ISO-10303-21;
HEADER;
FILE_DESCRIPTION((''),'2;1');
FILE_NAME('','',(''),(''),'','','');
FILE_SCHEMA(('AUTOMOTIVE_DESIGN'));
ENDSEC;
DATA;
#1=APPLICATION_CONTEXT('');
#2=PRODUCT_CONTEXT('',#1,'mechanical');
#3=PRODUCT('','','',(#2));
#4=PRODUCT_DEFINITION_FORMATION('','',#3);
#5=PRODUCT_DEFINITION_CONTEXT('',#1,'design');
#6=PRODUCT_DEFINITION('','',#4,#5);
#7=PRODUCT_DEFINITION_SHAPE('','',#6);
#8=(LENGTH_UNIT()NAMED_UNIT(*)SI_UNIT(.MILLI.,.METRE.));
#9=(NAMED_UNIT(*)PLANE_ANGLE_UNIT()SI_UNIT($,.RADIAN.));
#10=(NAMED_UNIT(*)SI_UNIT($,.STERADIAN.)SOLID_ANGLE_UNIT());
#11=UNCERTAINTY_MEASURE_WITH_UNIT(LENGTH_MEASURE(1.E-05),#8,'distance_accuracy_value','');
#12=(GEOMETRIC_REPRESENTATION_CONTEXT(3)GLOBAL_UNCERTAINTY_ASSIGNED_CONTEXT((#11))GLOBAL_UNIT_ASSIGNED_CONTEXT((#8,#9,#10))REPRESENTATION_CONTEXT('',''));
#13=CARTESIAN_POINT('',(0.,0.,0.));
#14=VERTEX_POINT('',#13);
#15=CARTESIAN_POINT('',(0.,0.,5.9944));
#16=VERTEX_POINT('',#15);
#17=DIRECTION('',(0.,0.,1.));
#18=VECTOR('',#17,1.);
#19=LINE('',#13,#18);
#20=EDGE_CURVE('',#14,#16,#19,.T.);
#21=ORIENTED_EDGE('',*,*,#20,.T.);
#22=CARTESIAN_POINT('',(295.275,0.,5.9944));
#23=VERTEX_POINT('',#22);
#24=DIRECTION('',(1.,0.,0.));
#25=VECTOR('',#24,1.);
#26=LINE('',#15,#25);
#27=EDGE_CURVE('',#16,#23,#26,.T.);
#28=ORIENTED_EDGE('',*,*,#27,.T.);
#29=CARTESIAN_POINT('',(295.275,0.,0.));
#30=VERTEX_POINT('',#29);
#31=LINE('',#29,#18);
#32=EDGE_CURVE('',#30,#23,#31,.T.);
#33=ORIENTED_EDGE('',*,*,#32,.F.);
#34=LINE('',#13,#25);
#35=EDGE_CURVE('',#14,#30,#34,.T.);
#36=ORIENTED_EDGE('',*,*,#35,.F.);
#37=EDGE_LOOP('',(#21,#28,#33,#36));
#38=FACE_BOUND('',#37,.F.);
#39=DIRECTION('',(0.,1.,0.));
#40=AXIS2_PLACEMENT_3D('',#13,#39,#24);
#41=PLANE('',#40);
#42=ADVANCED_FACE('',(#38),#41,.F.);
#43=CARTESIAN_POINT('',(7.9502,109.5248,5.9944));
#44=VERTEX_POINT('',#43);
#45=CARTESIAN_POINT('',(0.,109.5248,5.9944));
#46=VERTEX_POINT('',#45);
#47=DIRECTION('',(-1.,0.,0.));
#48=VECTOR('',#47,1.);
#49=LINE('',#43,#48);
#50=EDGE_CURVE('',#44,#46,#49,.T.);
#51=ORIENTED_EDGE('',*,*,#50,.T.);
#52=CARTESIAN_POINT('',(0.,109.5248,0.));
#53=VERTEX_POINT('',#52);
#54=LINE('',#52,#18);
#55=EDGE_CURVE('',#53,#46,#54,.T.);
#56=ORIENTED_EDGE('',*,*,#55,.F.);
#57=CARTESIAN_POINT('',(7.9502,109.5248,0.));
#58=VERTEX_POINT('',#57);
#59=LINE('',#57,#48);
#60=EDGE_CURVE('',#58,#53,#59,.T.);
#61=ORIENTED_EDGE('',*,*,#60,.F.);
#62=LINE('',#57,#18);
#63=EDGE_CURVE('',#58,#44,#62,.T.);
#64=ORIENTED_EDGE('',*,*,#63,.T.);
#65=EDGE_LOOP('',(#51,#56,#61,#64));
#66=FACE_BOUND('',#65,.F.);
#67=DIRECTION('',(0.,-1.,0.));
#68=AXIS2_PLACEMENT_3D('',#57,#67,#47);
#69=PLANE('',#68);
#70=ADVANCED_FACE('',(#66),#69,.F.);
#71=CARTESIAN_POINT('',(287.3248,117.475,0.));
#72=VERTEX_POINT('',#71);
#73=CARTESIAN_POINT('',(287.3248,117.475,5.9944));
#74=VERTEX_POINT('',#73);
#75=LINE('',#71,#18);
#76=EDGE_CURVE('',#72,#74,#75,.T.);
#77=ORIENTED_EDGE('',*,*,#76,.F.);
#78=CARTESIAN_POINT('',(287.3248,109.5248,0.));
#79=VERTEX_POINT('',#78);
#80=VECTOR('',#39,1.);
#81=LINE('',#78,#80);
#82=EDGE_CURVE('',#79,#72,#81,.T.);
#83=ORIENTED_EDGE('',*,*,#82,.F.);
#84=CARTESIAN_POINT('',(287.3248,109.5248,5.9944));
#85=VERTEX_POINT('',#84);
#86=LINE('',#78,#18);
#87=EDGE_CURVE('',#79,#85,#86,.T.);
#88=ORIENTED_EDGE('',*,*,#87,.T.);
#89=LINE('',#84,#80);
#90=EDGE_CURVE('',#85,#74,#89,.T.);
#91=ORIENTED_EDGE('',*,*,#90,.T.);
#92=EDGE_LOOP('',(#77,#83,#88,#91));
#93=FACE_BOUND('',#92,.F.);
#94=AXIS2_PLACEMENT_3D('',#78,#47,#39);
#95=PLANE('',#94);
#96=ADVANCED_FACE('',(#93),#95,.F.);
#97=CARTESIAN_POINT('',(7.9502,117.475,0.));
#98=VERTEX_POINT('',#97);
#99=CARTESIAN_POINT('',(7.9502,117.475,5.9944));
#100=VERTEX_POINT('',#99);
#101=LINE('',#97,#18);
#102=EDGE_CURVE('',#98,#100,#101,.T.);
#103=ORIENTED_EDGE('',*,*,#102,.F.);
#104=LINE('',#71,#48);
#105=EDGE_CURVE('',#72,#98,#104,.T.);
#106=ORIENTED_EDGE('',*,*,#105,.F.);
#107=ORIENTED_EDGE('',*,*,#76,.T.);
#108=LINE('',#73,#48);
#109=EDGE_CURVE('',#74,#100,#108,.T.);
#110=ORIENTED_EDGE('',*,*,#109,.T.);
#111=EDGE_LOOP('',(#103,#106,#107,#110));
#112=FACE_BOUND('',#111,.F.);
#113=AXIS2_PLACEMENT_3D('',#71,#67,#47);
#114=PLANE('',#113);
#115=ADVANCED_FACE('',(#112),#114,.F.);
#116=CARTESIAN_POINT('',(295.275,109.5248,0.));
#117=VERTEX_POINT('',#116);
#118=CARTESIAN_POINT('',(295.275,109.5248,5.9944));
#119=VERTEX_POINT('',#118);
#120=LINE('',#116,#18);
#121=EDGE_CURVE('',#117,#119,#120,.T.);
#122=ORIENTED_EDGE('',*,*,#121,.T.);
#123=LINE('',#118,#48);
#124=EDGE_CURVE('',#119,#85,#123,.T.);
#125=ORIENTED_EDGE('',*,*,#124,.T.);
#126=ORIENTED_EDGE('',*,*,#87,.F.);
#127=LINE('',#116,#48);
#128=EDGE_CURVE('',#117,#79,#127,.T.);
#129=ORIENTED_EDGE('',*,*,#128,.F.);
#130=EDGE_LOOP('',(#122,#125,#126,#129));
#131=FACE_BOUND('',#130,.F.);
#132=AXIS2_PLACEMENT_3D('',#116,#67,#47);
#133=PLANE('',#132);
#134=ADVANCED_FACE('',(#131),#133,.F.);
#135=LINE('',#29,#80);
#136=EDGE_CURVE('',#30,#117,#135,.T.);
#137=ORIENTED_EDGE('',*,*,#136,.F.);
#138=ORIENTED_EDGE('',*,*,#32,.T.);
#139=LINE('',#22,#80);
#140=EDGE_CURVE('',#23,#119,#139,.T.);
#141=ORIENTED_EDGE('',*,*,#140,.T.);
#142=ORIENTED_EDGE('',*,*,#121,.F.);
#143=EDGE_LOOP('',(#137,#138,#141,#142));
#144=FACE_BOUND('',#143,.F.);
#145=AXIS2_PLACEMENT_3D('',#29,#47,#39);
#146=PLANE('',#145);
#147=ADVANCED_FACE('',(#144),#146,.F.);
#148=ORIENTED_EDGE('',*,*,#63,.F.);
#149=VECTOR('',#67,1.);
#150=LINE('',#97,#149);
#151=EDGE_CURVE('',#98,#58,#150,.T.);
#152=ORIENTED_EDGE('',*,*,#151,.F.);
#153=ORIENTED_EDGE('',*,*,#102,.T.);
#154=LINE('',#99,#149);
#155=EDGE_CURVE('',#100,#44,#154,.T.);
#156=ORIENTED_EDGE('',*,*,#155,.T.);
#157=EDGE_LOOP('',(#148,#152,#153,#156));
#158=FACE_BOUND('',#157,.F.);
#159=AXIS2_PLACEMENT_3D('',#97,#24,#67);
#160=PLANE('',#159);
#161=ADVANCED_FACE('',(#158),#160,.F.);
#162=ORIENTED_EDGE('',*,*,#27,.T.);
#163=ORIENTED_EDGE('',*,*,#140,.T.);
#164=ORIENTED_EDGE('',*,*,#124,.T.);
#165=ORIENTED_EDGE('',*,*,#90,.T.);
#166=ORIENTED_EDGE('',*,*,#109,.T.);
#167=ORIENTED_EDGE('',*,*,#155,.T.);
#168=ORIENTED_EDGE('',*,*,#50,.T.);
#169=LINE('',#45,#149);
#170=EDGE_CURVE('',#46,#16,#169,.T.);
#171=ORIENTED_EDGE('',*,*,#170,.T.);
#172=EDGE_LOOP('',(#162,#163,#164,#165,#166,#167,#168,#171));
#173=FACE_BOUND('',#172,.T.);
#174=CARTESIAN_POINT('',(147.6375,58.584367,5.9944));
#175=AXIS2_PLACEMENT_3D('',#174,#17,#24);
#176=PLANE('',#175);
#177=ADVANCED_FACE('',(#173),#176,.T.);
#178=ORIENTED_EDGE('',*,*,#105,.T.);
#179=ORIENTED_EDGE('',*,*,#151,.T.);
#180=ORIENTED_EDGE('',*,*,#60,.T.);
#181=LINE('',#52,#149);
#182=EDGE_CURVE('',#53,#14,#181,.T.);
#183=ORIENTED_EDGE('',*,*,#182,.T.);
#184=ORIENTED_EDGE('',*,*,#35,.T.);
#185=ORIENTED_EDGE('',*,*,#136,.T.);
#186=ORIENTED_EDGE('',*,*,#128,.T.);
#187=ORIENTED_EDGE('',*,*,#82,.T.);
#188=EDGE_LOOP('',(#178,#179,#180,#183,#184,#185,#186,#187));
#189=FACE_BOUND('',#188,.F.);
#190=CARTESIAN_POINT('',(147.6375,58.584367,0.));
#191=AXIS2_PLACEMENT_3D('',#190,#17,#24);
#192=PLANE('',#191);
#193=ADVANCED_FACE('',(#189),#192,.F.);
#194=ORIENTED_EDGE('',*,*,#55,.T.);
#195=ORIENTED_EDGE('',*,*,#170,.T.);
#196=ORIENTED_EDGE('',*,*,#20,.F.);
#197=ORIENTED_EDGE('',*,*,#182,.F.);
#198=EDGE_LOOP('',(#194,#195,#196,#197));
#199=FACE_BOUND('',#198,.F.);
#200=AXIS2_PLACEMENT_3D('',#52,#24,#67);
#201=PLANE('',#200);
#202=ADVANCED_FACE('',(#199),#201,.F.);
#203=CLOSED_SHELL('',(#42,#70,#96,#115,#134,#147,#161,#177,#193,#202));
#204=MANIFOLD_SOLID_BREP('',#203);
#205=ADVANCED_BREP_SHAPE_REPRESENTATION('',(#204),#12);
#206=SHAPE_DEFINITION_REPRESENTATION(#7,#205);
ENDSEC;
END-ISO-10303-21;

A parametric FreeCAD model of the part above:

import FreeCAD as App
import Part
import Sketcher
Q = App.Units.Quantity

doc = App.newDocument("Part")
body = doc.addObject("PartDesign::Body", "Body")

# Sketch on XY plane
sketch1 = doc.addObject("Sketcher::SketchObject", "Sketch")
body.addObject(sketch1)
sketch1.AttachmentSupport = (doc.XY_Plane, [""])
sketch1.MapMode = "FlatFace"
sketch1.addGeometry([
    Part.LineSegment(App.Vector(0, 0, 0), App.Vector(295, 0, 0)),  # 0
    Part.LineSegment(App.Vector(295, 0, 0), App.Vector(295, 110, 0)),  # 1
    Part.LineSegment(App.Vector(295, 110, 0), App.Vector(287, 110, 0)),  # 2
    Part.LineSegment(App.Vector(287, 110, 0), App.Vector(287, 117, 0)),  # 3
    Part.LineSegment(App.Vector(287, 117, 0), App.Vector(8, 117, 0)),  # 4
    Part.LineSegment(App.Vector(8, 117, 0), App.Vector(8, 110, 0)),  # 5
    Part.LineSegment(App.Vector(8, 110, 0), App.Vector(0, 110, 0)),  # 6
    Part.LineSegment(App.Vector(0, 110, 0), App.Vector(0, 0, 0)),  # 7
], False)
sketch1.addConstraint([
    Sketcher.Constraint("Coincident", 0, 2, 1, 1),
    Sketcher.Constraint("Coincident", 1, 2, 2, 1),
    Sketcher.Constraint("Coincident", 2, 2, 3, 1),
    Sketcher.Constraint("Coincident", 3, 2, 4, 1),
    Sketcher.Constraint("Coincident", 4, 2, 5, 1),
    Sketcher.Constraint("Coincident", 5, 2, 6, 1),
    Sketcher.Constraint("Coincident", 6, 2, 7, 1),
    Sketcher.Constraint("Coincident", 7, 2, 0, 1),
    Sketcher.Constraint("Horizontal", 0),
    Sketcher.Constraint("Vertical", 1),
    Sketcher.Constraint("Horizontal", 2),
    Sketcher.Constraint("Vertical", 3),
    Sketcher.Constraint("Horizontal", 4),
    Sketcher.Constraint("Vertical", 5),
    Sketcher.Constraint("Horizontal", 6),
    Sketcher.Constraint("Vertical", 7),
    Sketcher.Constraint("Coincident", 7, 2, -1, 1),
    Sketcher.Constraint("Horizontal", 2, 2, 5, 2),
    Sketcher.Constraint("Equal", 2, 6),
    Sketcher.Constraint("Equal", 6, 3),
    Sketcher.Constraint("DistanceX", 0, 1, 0, 2, Q("11.625 in")),
    Sketcher.Constraint("DistanceX", 2, 2, 2, 1, Q("0.313 in")),
    Sketcher.Constraint("DistanceY", 1, 1, 1, 2, Q("4.312 in")),
])
pad1 = doc.addObject("PartDesign::Pad", "Pad")
body.addObject(pad1)
pad1.Profile = sketch1
pad1.Length = Q("0.236 in")

doc.recompute()
